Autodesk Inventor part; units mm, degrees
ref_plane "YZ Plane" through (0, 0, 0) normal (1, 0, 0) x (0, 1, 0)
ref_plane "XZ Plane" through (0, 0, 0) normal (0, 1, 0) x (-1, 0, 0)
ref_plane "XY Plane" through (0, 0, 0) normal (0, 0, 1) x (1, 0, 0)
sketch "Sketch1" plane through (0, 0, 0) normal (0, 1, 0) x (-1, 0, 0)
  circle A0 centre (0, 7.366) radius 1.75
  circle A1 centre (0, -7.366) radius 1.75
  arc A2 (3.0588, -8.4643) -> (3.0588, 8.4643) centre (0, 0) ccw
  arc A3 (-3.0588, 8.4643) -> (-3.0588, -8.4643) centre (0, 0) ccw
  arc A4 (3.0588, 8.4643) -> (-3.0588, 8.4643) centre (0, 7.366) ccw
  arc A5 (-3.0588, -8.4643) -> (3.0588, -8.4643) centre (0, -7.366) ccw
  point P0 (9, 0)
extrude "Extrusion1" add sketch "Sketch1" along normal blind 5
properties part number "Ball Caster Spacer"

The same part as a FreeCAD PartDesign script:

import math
import FreeCAD as App
import Part
import Sketcher

doc = App.newDocument("Part")
body = doc.addObject("PartDesign::Body", "Body")

# Sketch on XZ plane
sketch1 = body.newObject("Sketcher::SketchObject", "Sketch")
sketch1.AttachmentSupport = (doc.getObject("XZ_Plane"), [""])
sketch1.MapMode = "FlatFace"
sketch1.addGeometry([
    Part.ArcOfCircle(Part.Circle(App.Vector(0, -7.4, 0), App.Vector(0, 0, 1), 3.3), math.radians(-160), math.radians(-20)),  # 0
    Part.ArcOfCircle(Part.Circle(App.Vector(0, 0, 0), App.Vector(0, 0, 1), 9), math.radians(110), math.radians(250)),  # 1
    Part.ArcOfCircle(Part.Circle(App.Vector(0, 7.4, 0), App.Vector(0, 0, 1), 3.3), math.radians(20), math.radians(160)),  # 2
    Part.ArcOfCircle(Part.Circle(App.Vector(0, 0, 0), App.Vector(0, 0, 1), 9), math.radians(-70), math.radians(70)),  # 3
    Part.Circle(App.Vector(0, -7.4, 0), App.Vector(0, 0, 1), 1.8),  # 4
    Part.Circle(App.Vector(0, 7.4, 0), App.Vector(0, 0, 1), 1.8),  # 5
], False)
sketch1.addConstraint([
    Sketcher.Constraint("Coincident", 0, 1, 1, 2),
    Sketcher.Constraint("Coincident", 1, 1, 2, 2),
    Sketcher.Constraint("Coincident", 2, 1, 3, 2),
    Sketcher.Constraint("Coincident", 3, 1, 0, 2),
    Sketcher.Constraint("Coincident", 1, 3, -1, 1),
    Sketcher.Constraint("Coincident", 3, 3, -1, 1),
    Sketcher.Constraint("Coincident", 4, 3, 0, 3),
    Sketcher.Constraint("Coincident", 5, 3, 2, 3),
    Sketcher.Constraint("Equal", 0, 2),
    Sketcher.Constraint("Equal", 1, 3),
    Sketcher.Constraint("Equal", 4, 5),
    Sketcher.Constraint("Symmetric", 0, 3, 2, 3, -1, 1),
    Sketcher.Constraint("PointOnObject", 0, 3, -2),
    Sketcher.Constraint("Radius", 1, 9.0),
    Sketcher.Constraint("Diameter", 4, 3.5),
    Sketcher.Constraint("Radius", 0, 3.25),
    Sketcher.Constraint("DistanceY", 0, 3, -1, 1, 7.366),
])
pad1 = body.newObject("PartDesign::Pad", "Pad")
pad1.Profile = sketch1
pad1.Length = 5
pad1.Reversed = True

doc.recompute()
